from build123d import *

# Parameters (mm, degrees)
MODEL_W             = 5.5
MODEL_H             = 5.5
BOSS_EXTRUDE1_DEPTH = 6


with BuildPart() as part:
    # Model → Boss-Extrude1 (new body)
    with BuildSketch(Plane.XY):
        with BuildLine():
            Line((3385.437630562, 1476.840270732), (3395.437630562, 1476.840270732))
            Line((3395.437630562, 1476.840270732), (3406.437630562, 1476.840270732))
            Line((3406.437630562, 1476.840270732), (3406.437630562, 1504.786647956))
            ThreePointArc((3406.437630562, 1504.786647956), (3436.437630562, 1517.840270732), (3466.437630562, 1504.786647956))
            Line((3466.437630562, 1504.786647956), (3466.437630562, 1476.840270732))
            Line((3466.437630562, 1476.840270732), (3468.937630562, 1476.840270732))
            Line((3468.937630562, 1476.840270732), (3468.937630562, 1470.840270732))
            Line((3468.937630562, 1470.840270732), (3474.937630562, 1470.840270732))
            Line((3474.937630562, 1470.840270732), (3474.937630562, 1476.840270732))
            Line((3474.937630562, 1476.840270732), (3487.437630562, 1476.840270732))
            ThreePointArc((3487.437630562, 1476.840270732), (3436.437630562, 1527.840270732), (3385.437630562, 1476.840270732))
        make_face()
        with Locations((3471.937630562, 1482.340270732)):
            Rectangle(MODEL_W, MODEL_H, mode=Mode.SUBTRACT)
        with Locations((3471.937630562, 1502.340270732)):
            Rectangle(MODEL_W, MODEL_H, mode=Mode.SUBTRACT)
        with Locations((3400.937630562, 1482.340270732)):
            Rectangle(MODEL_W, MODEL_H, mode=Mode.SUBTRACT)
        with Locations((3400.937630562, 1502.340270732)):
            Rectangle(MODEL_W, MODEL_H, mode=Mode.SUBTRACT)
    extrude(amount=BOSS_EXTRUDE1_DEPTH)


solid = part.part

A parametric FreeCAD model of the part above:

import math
import FreeCAD as App
import Part
import Sketcher

V = App.Vector

doc = App.newDocument("Part")
body = doc.addObject("PartDesign::Body", "Body")

sketch1 = body.newObject("Sketcher::SketchObject", "Sketch")
sketch1.AttachmentSupport = (doc.getObject("XY_Plane"), [""])
sketch1.MapMode = "FlatFace"
sketch1.addGeometry(Part.LineSegment(V(3385.4, 1476.8, 0), V(3406.4, 1476.8, 0)), False)
sketch1.addGeometry(Part.LineSegment(V(3406.4, 1476.8, 0), V(3406.4, 1504.8, 0)), False)
sketch1.addGeometry(Part.ArcOfCircle(Part.Circle(V(3436.4, 1476.8, 0), V(0, 0, 1), 41), math.radians(43), math.radians(137)), False)
sketch1.addGeometry(Part.LineSegment(V(3466.4, 1504.8, 0), V(3466.4, 1476.8, 0)), False)
sketch1.addGeometry(Part.LineSegment(V(3466.4, 1476.8, 0), V(3468.9, 1476.8, 0)), False)
sketch1.addGeometry(Part.LineSegment(V(3468.9, 1476.8, 0), V(3468.9, 1470.8, 0)), False)
sketch1.addGeometry(Part.LineSegment(V(3468.9, 1470.8, 0), V(3474.9, 1470.8, 0)), False)
sketch1.addGeometry(Part.LineSegment(V(3474.9, 1470.8, 0), V(3474.9, 1476.8, 0)), False)
sketch1.addGeometry(Part.LineSegment(V(3474.9, 1476.8, 0), V(3487.4, 1476.8, 0)), False)
sketch1.addGeometry(Part.ArcOfCircle(Part.Circle(V(3436.4, 1476.8, 0), V(0, 0, 1), 51), math.radians(0), math.radians(180)), False)
sketch1.addGeometry(Part.LineSegment(V(3403.7, 1479.6, 0), V(3398.2, 1479.6, 0)), False)
sketch1.addGeometry(Part.LineSegment(V(3398.2, 1479.6, 0), V(3398.2, 1485.1, 0)), False)
sketch1.addGeometry(Part.LineSegment(V(3398.2, 1485.1, 0), V(3403.7, 1485.1, 0)), False)
sketch1.addGeometry(Part.LineSegment(V(3403.7, 1485.1, 0), V(3403.7, 1479.6, 0)), False)
sketch1.addGeometry(Part.LineSegment(V(3474.7, 1479.6, 0), V(3469.2, 1479.6, 0)), False)
sketch1.addGeometry(Part.LineSegment(V(3469.2, 1479.6, 0), V(3469.2, 1485.1, 0)), False)
sketch1.addGeometry(Part.LineSegment(V(3469.2, 1485.1, 0), V(3474.7, 1485.1, 0)), False)
sketch1.addGeometry(Part.LineSegment(V(3474.7, 1485.1, 0), V(3474.7, 1479.6, 0)), False)
sketch1.addGeometry(Part.LineSegment(V(3403.7, 1499.6, 0), V(3398.2, 1499.6, 0)), False)
sketch1.addGeometry(Part.LineSegment(V(3398.2, 1499.6, 0), V(3398.2, 1505.1, 0)), False)
sketch1.addGeometry(Part.LineSegment(V(3398.2, 1505.1, 0), V(3403.7, 1505.1, 0)), False)
sketch1.addGeometry(Part.LineSegment(V(3403.7, 1505.1, 0), V(3403.7, 1499.6, 0)), False)
sketch1.addGeometry(Part.LineSegment(V(3474.7, 1499.6, 0), V(3469.2, 1499.6, 0)), False)
sketch1.addGeometry(Part.LineSegment(V(3469.2, 1499.6, 0), V(3469.2, 1505.1, 0)), False)
sketch1.addGeometry(Part.LineSegment(V(3469.2, 1505.1, 0), V(3474.7, 1505.1, 0)), False)
sketch1.addGeometry(Part.LineSegment(V(3474.7, 1505.1, 0), V(3474.7, 1499.6, 0)), False)
sketch1.addConstraint(Sketcher.Constraint("Coincident", 0, 2, 1, 1))
sketch1.addConstraint(Sketcher.Constraint("Coincident", 1, 2, 2, 2))
sketch1.addConstraint(Sketcher.Constraint("Coincident", 2, 1, 3, 1))
sketch1.addConstraint(Sketcher.Constraint("Coincident", 3, 2, 4, 1))
sketch1.addConstraint(Sketcher.Constraint("Coincident", 4, 2, 5, 1))
sketch1.addConstraint(Sketcher.Constraint("Coincident", 5, 2, 6, 1))
sketch1.addConstraint(Sketcher.Constraint("Coincident", 6, 2, 7, 1))
sketch1.addConstraint(Sketcher.Constraint("Coincident", 7, 2, 8, 1))
sketch1.addConstraint(Sketcher.Constraint("Coincident", 8, 2, 9, 1))
sketch1.addConstraint(Sketcher.Constraint("Coincident", 9, 2, 0, 1))
sketch1.addConstraint(Sketcher.Constraint("Coincident", 10, 2, 11, 1))
sketch1.addConstraint(Sketcher.Constraint("Coincident", 11, 2, 12, 1))
sketch1.addConstraint(Sketcher.Constraint("Coincident", 12, 2, 13, 1))
sketch1.addConstraint(Sketcher.Constraint("Coincident", 13, 2, 10, 1))
sketch1.addConstraint(Sketcher.Constraint("Coincident", 14, 2, 15, 1))
sketch1.addConstraint(Sketcher.Constraint("Coincident", 15, 2, 16, 1))
sketch1.addConstraint(Sketcher.Constraint("Coincident", 16, 2, 17, 1))
sketch1.addConstraint(Sketcher.Constraint("Coincident", 17, 2, 14, 1))
sketch1.addConstraint(Sketcher.Constraint("Coincident", 18, 2, 19, 1))
sketch1.addConstraint(Sketcher.Constraint("Coincident", 19, 2, 20, 1))
sketch1.addConstraint(Sketcher.Constraint("Coincident", 20, 2, 21, 1))
sketch1.addConstraint(Sketcher.Constraint("Coincident", 21, 2, 18, 1))
sketch1.addConstraint(Sketcher.Constraint("Coincident", 22, 2, 23, 1))
sketch1.addConstraint(Sketcher.Constraint("Coincident", 23, 2, 24, 1))
sketch1.addConstraint(Sketcher.Constraint("Coincident", 24, 2, 25, 1))
sketch1.addConstraint(Sketcher.Constraint("Coincident", 25, 2, 22, 1))
sketch1.addConstraint(Sketcher.Constraint("Horizontal", 0))
sketch1.addConstraint(Sketcher.Constraint("Vertical", 1))
sketch1.addConstraint(Sketcher.Constraint("Vertical", 3))
sketch1.addConstraint(Sketcher.Constraint("Horizontal", 4))
sketch1.addConstraint(Sketcher.Constraint("Vertical", 5))
sketch1.addConstraint(Sketcher.Constraint("Horizontal", 6))
sketch1.addConstraint(Sketcher.Constraint("Vertical", 7))
sketch1.addConstraint(Sketcher.Constraint("Horizontal", 8))
sketch1.addConstraint(Sketcher.Constraint("Horizontal", 10))
sketch1.addConstraint(Sketcher.Constraint("Vertical", 11))
sketch1.addConstraint(Sketcher.Constraint("Horizontal", 12))
sketch1.addConstraint(Sketcher.Constraint("Vertical", 13))
sketch1.addConstraint(Sketcher.Constraint("Horizontal", 14))
sketch1.addConstraint(Sketcher.Constraint("Vertical", 15))
sketch1.addConstraint(Sketcher.Constraint("Horizontal", 16))
sketch1.addConstraint(Sketcher.Constraint("Vertical", 17))
sketch1.addConstraint(Sketcher.Constraint("Horizontal", 18))
sketch1.addConstraint(Sketcher.Constraint("Vertical", 19))
sketch1.addConstraint(Sketcher.Constraint("Horizontal", 20))
sketch1.addConstraint(Sketcher.Constraint("Vertical", 21))
sketch1.addConstraint(Sketcher.Constraint("Horizontal", 22))
sketch1.addConstraint(Sketcher.Constraint("Vertical", 23))
sketch1.addConstraint(Sketcher.Constraint("Horizontal", 24))
sketch1.addConstraint(Sketcher.Constraint("Vertical", 25))
sketch1.addConstraint(Sketcher.Constraint("Coincident", 9, 3, 2, 3))
sketch1.addConstraint(Sketcher.Constraint("Horizontal", 9, 3, 0, 2))
sketch1.addConstraint(Sketcher.Constraint("Horizontal", 1, 2, 2, 1))
sketch1.addConstraint(Sketcher.Constraint("Horizontal", 0, 2, 3, 2))
sketch1.addConstraint(Sketcher.Constraint("Horizontal", 4, 2, 7, 2))
sketch1.addConstraint(Sketcher.Constraint("Horizontal", 13, 2, 14, 2))
sketch1.addConstraint(Sketcher.Constraint("Horizontal", 12, 2, 15, 2))
sketch1.addConstraint(Sketcher.Constraint("Horizontal", 21, 2, 22, 2))
sketch1.addConstraint(Sketcher.Constraint("Horizontal", 20, 2, 23, 2))
sketch1.addConstraint(Sketcher.Constraint("Vertical", 11, 2, 18, 2))
sketch1.addConstraint(Sketcher.Constraint("Vertical", 13, 2, 20, 2))
sketch1.addConstraint(Sketcher.Constraint("Vertical", 15, 2, 22, 2))
sketch1.addConstraint(Sketcher.Constraint("Vertical", 17, 2, 24, 2))
sketch1.addConstraint(Sketcher.Constraint("Equal", 12, 14))
sketch1.addConstraint(Sketcher.Constraint("Equal", 6, 5))
sketch1.addConstraint(Sketcher.Constraint("Equal", 24, 11))
sketch1.addConstraint(Sketcher.Constraint("Equal", 17, 19))
sketch1.addConstraint(Sketcher.Constraint("Radius", 2, 41.0))
sketch1.addConstraint(Sketcher.Constraint("Radius", 9, 51.0))
sketch1.addConstraint(Sketcher.Constraint("DistanceX", 0, 1, 0, 2, 21.0))
sketch1.addConstraint(Sketcher.Constraint("DistanceX", 6, 1, 6, 2, 6.0))
sketch1.addConstraint(Sketcher.Constraint("DistanceX", 4, 1, 4, 2, 2.5))
sketch1.addConstraint(Sketcher.Constraint("DistanceX", 10, 2, 10, 1, 5.5))
sketch1.addConstraint(Sketcher.Constraint("DistanceY", 10, 2, 18, 2, 20.0))
sketch1.addConstraint(Sketcher.Constraint("DistanceX", 10, 2, 0, 2, 8.25))
sketch1.addConstraint(Sketcher.Constraint("DistanceY", 0, 2, 10, 2, 2.75))
sketch1.addConstraint(Sketcher.Constraint("DistanceX", 4, 2, 14, 2, 0.25))
sketch1.addConstraint(Sketcher.Constraint("DistanceX", -1, 1, 2, 3, 3436.437631))
sketch1.addConstraint(Sketcher.Constraint("DistanceY", -1, 1, 2, 3, 1476.840271))
pad1 = body.newObject("PartDesign::Pad", "Pad")
pad1.Profile = sketch1
pad1.Length = 6

doc.recompute()
